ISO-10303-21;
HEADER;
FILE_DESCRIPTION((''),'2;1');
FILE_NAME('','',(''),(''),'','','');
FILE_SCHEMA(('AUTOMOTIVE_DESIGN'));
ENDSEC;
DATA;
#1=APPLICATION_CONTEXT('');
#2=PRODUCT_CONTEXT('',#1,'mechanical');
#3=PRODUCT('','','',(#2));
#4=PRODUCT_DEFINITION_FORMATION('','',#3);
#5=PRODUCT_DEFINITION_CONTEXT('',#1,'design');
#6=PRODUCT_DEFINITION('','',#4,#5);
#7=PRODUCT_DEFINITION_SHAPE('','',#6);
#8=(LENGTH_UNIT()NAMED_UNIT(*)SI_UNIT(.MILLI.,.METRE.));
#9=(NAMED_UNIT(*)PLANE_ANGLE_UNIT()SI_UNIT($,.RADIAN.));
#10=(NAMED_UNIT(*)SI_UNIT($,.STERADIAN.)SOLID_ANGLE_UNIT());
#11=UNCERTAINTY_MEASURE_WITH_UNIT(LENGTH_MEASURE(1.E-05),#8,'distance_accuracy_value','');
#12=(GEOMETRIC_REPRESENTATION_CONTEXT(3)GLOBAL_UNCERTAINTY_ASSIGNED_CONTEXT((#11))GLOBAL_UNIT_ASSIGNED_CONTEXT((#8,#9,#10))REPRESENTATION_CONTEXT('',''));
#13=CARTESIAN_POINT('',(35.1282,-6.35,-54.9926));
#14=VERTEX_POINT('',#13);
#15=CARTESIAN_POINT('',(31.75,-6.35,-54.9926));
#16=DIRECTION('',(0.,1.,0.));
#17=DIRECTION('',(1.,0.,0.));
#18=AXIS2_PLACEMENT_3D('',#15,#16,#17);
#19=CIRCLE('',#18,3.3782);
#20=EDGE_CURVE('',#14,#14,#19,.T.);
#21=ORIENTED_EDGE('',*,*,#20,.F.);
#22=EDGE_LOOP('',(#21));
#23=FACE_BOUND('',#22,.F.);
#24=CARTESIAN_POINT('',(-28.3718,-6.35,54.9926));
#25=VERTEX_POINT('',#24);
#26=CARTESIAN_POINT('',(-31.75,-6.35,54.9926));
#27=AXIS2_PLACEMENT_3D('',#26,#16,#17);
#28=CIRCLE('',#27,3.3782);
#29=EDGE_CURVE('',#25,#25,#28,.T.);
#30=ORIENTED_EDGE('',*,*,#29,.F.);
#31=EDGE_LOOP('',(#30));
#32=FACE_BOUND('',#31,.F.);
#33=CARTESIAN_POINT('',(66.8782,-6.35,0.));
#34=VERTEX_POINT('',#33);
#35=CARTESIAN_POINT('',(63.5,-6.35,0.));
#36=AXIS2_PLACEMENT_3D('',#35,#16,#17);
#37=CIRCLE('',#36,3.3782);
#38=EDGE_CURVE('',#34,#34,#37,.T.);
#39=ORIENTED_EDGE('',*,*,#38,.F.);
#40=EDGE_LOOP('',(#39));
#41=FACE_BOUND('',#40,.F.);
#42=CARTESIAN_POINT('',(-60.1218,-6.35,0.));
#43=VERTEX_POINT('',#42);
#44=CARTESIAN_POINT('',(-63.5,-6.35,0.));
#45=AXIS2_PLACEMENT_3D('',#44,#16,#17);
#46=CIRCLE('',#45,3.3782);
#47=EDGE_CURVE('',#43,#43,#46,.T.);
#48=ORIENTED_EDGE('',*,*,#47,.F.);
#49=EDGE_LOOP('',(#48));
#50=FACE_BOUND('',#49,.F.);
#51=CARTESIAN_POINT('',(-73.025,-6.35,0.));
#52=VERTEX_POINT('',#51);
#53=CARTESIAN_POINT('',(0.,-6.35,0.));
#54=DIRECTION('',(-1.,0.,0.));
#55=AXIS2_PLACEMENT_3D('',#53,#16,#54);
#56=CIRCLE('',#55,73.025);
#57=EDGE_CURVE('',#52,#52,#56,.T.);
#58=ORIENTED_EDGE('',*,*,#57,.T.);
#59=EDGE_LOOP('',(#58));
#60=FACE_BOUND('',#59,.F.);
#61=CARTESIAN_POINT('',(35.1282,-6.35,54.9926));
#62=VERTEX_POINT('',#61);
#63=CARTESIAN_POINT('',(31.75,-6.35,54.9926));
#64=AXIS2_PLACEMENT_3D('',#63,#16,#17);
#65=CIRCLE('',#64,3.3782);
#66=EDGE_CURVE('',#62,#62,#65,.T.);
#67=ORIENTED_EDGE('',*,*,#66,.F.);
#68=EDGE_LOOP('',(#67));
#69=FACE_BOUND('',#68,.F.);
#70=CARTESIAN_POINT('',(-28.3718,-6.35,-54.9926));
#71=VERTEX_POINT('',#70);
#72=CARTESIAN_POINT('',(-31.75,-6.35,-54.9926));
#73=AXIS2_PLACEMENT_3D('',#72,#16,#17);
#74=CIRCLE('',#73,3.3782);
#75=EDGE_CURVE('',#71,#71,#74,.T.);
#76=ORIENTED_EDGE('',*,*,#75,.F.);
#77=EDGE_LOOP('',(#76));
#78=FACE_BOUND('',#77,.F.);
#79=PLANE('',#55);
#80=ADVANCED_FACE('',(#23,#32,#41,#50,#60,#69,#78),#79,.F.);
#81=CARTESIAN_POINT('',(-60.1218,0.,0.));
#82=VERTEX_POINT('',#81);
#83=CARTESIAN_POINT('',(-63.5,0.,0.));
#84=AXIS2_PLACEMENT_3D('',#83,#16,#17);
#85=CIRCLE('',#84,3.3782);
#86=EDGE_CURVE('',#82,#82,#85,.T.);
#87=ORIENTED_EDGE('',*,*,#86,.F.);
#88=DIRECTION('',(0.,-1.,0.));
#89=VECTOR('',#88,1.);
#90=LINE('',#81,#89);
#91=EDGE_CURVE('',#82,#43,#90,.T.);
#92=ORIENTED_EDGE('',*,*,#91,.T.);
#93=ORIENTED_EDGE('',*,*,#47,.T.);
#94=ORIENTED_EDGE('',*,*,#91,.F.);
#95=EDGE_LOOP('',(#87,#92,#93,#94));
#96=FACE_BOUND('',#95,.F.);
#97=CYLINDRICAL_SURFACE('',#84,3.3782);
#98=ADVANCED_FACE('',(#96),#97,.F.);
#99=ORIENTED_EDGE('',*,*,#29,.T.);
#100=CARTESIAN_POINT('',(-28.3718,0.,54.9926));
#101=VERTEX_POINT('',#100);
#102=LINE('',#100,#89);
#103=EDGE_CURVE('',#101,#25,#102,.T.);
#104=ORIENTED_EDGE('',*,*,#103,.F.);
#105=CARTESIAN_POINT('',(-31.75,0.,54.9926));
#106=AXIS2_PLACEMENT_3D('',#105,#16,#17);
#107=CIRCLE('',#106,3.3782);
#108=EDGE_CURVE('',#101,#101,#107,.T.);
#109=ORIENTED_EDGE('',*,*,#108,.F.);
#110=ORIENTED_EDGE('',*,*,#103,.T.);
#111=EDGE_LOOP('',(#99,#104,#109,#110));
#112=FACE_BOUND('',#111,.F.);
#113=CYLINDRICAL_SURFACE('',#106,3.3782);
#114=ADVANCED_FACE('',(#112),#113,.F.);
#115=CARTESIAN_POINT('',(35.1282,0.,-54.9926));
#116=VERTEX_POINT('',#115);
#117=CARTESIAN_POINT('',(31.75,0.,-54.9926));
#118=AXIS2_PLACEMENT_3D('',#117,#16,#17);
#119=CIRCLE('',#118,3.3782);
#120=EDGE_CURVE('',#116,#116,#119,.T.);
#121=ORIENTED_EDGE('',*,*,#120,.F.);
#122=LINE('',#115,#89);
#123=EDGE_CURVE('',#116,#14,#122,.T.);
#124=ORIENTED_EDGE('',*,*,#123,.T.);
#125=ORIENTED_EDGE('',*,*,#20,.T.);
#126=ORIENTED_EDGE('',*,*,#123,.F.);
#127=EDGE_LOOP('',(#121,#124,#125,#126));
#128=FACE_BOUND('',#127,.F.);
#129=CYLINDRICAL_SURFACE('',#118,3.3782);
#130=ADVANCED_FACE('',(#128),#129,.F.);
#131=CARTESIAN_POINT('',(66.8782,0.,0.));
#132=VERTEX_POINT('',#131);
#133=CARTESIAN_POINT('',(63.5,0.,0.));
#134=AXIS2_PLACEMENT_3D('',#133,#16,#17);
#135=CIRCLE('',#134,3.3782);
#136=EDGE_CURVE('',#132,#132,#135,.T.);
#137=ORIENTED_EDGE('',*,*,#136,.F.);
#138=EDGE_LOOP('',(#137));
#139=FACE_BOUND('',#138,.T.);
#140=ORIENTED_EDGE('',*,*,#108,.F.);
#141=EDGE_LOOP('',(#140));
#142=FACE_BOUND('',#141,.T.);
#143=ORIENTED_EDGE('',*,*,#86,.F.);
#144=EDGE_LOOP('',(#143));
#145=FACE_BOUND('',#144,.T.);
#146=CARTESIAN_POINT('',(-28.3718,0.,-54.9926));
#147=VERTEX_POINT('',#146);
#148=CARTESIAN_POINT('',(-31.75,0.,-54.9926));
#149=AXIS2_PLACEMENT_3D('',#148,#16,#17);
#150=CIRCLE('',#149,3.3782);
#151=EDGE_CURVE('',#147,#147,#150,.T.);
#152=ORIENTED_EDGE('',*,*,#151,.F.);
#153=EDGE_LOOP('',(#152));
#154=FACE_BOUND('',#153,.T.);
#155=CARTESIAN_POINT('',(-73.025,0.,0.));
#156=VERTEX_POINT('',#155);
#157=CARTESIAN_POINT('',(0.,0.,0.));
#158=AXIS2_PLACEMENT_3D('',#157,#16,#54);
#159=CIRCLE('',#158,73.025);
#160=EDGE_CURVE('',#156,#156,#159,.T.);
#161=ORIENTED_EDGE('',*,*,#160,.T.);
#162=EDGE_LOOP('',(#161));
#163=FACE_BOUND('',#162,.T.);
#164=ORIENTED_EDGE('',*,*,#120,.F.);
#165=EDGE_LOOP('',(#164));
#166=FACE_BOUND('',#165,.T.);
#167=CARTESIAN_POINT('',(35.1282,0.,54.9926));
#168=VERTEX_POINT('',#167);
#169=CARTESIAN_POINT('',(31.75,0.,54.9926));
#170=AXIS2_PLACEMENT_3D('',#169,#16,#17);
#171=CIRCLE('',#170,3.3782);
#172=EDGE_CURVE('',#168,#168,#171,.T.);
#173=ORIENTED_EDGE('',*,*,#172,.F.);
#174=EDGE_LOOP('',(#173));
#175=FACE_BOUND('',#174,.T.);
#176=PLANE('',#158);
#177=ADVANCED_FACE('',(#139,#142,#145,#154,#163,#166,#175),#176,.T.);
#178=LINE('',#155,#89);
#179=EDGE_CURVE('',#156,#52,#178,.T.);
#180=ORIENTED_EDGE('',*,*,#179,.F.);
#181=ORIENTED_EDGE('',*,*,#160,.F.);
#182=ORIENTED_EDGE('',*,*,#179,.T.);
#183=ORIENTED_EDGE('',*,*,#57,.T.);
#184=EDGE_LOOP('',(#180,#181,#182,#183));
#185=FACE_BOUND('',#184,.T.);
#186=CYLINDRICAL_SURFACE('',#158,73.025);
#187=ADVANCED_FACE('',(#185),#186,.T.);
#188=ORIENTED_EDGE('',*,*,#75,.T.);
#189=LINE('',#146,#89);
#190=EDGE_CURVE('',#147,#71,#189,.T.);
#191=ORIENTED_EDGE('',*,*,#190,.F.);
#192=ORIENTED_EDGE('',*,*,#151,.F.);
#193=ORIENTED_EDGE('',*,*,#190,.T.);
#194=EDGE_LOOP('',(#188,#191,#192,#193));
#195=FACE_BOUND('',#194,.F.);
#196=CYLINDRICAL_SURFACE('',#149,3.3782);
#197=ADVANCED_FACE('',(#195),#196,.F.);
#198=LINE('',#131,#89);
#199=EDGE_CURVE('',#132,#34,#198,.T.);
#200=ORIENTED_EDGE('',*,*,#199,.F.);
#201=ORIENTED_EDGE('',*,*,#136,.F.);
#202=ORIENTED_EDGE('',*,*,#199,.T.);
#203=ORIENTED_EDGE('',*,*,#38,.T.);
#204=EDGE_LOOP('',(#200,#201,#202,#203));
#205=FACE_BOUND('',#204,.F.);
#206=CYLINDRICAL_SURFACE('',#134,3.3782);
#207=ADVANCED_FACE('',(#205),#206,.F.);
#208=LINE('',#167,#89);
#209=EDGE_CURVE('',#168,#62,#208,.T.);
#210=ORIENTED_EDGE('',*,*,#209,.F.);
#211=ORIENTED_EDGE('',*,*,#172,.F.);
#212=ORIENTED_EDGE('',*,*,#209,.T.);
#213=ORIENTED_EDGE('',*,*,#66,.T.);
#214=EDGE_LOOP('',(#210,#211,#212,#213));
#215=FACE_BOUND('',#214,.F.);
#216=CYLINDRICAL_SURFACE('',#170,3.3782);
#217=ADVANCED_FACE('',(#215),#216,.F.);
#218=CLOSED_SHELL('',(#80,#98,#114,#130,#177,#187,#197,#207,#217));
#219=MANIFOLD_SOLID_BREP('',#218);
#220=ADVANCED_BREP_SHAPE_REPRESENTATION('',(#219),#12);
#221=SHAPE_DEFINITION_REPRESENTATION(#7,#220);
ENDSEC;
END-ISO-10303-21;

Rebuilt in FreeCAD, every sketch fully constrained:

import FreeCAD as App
import Part
import Sketcher
from FreeCAD import Vector
Q = App.Units.Quantity

doc = App.newDocument("Part")
params = doc.addObject("Spreadsheet::Sheet", "Params")
for row, (alias, value) in enumerate([
    ("sketch1_diameter", "5.75 in"),
    ("pad1_length", "0.25 in"),
    ("sketch2_diameter", "0.266 in"),
], start=1):
    params.set(f"A{row}", alias)
    params.set(f"B{row}", "=" + value)
    params.setAlias(f"B{row}", alias)

body = doc.addObject("PartDesign::Body", "Body")

# Sketch on XZ plane
sketch1 = body.newObject("Sketcher::SketchObject", "Sketch")
sketch1.AttachmentSupport = (doc.getObject("XZ_Plane"), [""])
sketch1.MapMode = "FlatFace"
sketch1.addGeometry(Part.Circle(Vector(0, 0, 0), Vector(0, 0, 1), 73), False)
sketch1.addConstraint([
    Sketcher.Constraint("Coincident", 0, 3, -1, 1),
    Sketcher.Constraint("Diameter", 0, Q("5.75 in")),
])
sketch1.setExpression("Constraints[1]", "Params.sketch1_diameter")
pad1 = body.newObject("PartDesign::Pad", "Pad")
pad1.Profile = sketch1
pad1.setExpression("Length", "Params.pad1_length")

# Sketch on XZ plane
sketch2 = body.newObject("Sketcher::SketchObject", "Sketch001")
sketch2.AttachmentSupport = (doc.getObject("XZ_Plane"), [""])
sketch2.MapMode = "FlatFace"
sketch2.addGeometry([
    Part.Circle(Vector(-63.5, 0, 0), Vector(0, 0, 1), 3.4),  # 0
    Part.Circle(Vector(-31.8, 55, 0), Vector(0, 0, 1), 3.4),  # 1
    Part.Circle(Vector(31.8, 55, 0), Vector(0, 0, 1), 3.4),  # 2
    Part.Circle(Vector(63.5, 0, 0), Vector(0, 0, 1), 3.4),  # 3
    Part.Circle(Vector(31.8, -55, 0), Vector(0, 0, 1), 3.4),  # 4
    Part.Circle(Vector(-31.8, -55, 0), Vector(0, 0, 1), 3.4),  # 5
], False)
sketch2.addConstraint([
    Sketcher.Constraint("Equal", 0, 1),
    Sketcher.Constraint("Equal", 1, 2),
    Sketcher.Constraint("Equal", 2, 3),
    Sketcher.Constraint("Equal", 3, 4),
    Sketcher.Constraint("Equal", 4, 5),
    Sketcher.Constraint("Symmetric", 0, 3, 3, 3, -1, 1),
    Sketcher.Constraint("Symmetric", 1, 3, 4, 3, -1, 1),
    Sketcher.Constraint("Symmetric", 2, 3, 5, 3, -1, 1),
    Sketcher.Constraint("Symmetric", 1, 3, 2, 3, -2),
    Sketcher.Constraint("PointOnObject", 0, 3, -1),
    Sketcher.Constraint("Diameter", 0, Q("0.266 in")),
    Sketcher.Constraint("DistanceX", 0, 3, -1, 1, Q("2.5 in")),
    Sketcher.Constraint("DistanceX", 1, 3, 2, 3, Q("2.5 in")),
    Sketcher.Constraint("DistanceY", -1, 1, 1, 3, Q("54.9926 mm")),
])
sketch2.setExpression("Constraints[10]", "Params.sketch2_diameter")
pocket1 = body.newObject("PartDesign::Pocket", "Pocket")
pocket1.Profile = sketch2
pocket1.Type = "ThroughAll"
pocket1.Reversed = True

doc.recompute()
